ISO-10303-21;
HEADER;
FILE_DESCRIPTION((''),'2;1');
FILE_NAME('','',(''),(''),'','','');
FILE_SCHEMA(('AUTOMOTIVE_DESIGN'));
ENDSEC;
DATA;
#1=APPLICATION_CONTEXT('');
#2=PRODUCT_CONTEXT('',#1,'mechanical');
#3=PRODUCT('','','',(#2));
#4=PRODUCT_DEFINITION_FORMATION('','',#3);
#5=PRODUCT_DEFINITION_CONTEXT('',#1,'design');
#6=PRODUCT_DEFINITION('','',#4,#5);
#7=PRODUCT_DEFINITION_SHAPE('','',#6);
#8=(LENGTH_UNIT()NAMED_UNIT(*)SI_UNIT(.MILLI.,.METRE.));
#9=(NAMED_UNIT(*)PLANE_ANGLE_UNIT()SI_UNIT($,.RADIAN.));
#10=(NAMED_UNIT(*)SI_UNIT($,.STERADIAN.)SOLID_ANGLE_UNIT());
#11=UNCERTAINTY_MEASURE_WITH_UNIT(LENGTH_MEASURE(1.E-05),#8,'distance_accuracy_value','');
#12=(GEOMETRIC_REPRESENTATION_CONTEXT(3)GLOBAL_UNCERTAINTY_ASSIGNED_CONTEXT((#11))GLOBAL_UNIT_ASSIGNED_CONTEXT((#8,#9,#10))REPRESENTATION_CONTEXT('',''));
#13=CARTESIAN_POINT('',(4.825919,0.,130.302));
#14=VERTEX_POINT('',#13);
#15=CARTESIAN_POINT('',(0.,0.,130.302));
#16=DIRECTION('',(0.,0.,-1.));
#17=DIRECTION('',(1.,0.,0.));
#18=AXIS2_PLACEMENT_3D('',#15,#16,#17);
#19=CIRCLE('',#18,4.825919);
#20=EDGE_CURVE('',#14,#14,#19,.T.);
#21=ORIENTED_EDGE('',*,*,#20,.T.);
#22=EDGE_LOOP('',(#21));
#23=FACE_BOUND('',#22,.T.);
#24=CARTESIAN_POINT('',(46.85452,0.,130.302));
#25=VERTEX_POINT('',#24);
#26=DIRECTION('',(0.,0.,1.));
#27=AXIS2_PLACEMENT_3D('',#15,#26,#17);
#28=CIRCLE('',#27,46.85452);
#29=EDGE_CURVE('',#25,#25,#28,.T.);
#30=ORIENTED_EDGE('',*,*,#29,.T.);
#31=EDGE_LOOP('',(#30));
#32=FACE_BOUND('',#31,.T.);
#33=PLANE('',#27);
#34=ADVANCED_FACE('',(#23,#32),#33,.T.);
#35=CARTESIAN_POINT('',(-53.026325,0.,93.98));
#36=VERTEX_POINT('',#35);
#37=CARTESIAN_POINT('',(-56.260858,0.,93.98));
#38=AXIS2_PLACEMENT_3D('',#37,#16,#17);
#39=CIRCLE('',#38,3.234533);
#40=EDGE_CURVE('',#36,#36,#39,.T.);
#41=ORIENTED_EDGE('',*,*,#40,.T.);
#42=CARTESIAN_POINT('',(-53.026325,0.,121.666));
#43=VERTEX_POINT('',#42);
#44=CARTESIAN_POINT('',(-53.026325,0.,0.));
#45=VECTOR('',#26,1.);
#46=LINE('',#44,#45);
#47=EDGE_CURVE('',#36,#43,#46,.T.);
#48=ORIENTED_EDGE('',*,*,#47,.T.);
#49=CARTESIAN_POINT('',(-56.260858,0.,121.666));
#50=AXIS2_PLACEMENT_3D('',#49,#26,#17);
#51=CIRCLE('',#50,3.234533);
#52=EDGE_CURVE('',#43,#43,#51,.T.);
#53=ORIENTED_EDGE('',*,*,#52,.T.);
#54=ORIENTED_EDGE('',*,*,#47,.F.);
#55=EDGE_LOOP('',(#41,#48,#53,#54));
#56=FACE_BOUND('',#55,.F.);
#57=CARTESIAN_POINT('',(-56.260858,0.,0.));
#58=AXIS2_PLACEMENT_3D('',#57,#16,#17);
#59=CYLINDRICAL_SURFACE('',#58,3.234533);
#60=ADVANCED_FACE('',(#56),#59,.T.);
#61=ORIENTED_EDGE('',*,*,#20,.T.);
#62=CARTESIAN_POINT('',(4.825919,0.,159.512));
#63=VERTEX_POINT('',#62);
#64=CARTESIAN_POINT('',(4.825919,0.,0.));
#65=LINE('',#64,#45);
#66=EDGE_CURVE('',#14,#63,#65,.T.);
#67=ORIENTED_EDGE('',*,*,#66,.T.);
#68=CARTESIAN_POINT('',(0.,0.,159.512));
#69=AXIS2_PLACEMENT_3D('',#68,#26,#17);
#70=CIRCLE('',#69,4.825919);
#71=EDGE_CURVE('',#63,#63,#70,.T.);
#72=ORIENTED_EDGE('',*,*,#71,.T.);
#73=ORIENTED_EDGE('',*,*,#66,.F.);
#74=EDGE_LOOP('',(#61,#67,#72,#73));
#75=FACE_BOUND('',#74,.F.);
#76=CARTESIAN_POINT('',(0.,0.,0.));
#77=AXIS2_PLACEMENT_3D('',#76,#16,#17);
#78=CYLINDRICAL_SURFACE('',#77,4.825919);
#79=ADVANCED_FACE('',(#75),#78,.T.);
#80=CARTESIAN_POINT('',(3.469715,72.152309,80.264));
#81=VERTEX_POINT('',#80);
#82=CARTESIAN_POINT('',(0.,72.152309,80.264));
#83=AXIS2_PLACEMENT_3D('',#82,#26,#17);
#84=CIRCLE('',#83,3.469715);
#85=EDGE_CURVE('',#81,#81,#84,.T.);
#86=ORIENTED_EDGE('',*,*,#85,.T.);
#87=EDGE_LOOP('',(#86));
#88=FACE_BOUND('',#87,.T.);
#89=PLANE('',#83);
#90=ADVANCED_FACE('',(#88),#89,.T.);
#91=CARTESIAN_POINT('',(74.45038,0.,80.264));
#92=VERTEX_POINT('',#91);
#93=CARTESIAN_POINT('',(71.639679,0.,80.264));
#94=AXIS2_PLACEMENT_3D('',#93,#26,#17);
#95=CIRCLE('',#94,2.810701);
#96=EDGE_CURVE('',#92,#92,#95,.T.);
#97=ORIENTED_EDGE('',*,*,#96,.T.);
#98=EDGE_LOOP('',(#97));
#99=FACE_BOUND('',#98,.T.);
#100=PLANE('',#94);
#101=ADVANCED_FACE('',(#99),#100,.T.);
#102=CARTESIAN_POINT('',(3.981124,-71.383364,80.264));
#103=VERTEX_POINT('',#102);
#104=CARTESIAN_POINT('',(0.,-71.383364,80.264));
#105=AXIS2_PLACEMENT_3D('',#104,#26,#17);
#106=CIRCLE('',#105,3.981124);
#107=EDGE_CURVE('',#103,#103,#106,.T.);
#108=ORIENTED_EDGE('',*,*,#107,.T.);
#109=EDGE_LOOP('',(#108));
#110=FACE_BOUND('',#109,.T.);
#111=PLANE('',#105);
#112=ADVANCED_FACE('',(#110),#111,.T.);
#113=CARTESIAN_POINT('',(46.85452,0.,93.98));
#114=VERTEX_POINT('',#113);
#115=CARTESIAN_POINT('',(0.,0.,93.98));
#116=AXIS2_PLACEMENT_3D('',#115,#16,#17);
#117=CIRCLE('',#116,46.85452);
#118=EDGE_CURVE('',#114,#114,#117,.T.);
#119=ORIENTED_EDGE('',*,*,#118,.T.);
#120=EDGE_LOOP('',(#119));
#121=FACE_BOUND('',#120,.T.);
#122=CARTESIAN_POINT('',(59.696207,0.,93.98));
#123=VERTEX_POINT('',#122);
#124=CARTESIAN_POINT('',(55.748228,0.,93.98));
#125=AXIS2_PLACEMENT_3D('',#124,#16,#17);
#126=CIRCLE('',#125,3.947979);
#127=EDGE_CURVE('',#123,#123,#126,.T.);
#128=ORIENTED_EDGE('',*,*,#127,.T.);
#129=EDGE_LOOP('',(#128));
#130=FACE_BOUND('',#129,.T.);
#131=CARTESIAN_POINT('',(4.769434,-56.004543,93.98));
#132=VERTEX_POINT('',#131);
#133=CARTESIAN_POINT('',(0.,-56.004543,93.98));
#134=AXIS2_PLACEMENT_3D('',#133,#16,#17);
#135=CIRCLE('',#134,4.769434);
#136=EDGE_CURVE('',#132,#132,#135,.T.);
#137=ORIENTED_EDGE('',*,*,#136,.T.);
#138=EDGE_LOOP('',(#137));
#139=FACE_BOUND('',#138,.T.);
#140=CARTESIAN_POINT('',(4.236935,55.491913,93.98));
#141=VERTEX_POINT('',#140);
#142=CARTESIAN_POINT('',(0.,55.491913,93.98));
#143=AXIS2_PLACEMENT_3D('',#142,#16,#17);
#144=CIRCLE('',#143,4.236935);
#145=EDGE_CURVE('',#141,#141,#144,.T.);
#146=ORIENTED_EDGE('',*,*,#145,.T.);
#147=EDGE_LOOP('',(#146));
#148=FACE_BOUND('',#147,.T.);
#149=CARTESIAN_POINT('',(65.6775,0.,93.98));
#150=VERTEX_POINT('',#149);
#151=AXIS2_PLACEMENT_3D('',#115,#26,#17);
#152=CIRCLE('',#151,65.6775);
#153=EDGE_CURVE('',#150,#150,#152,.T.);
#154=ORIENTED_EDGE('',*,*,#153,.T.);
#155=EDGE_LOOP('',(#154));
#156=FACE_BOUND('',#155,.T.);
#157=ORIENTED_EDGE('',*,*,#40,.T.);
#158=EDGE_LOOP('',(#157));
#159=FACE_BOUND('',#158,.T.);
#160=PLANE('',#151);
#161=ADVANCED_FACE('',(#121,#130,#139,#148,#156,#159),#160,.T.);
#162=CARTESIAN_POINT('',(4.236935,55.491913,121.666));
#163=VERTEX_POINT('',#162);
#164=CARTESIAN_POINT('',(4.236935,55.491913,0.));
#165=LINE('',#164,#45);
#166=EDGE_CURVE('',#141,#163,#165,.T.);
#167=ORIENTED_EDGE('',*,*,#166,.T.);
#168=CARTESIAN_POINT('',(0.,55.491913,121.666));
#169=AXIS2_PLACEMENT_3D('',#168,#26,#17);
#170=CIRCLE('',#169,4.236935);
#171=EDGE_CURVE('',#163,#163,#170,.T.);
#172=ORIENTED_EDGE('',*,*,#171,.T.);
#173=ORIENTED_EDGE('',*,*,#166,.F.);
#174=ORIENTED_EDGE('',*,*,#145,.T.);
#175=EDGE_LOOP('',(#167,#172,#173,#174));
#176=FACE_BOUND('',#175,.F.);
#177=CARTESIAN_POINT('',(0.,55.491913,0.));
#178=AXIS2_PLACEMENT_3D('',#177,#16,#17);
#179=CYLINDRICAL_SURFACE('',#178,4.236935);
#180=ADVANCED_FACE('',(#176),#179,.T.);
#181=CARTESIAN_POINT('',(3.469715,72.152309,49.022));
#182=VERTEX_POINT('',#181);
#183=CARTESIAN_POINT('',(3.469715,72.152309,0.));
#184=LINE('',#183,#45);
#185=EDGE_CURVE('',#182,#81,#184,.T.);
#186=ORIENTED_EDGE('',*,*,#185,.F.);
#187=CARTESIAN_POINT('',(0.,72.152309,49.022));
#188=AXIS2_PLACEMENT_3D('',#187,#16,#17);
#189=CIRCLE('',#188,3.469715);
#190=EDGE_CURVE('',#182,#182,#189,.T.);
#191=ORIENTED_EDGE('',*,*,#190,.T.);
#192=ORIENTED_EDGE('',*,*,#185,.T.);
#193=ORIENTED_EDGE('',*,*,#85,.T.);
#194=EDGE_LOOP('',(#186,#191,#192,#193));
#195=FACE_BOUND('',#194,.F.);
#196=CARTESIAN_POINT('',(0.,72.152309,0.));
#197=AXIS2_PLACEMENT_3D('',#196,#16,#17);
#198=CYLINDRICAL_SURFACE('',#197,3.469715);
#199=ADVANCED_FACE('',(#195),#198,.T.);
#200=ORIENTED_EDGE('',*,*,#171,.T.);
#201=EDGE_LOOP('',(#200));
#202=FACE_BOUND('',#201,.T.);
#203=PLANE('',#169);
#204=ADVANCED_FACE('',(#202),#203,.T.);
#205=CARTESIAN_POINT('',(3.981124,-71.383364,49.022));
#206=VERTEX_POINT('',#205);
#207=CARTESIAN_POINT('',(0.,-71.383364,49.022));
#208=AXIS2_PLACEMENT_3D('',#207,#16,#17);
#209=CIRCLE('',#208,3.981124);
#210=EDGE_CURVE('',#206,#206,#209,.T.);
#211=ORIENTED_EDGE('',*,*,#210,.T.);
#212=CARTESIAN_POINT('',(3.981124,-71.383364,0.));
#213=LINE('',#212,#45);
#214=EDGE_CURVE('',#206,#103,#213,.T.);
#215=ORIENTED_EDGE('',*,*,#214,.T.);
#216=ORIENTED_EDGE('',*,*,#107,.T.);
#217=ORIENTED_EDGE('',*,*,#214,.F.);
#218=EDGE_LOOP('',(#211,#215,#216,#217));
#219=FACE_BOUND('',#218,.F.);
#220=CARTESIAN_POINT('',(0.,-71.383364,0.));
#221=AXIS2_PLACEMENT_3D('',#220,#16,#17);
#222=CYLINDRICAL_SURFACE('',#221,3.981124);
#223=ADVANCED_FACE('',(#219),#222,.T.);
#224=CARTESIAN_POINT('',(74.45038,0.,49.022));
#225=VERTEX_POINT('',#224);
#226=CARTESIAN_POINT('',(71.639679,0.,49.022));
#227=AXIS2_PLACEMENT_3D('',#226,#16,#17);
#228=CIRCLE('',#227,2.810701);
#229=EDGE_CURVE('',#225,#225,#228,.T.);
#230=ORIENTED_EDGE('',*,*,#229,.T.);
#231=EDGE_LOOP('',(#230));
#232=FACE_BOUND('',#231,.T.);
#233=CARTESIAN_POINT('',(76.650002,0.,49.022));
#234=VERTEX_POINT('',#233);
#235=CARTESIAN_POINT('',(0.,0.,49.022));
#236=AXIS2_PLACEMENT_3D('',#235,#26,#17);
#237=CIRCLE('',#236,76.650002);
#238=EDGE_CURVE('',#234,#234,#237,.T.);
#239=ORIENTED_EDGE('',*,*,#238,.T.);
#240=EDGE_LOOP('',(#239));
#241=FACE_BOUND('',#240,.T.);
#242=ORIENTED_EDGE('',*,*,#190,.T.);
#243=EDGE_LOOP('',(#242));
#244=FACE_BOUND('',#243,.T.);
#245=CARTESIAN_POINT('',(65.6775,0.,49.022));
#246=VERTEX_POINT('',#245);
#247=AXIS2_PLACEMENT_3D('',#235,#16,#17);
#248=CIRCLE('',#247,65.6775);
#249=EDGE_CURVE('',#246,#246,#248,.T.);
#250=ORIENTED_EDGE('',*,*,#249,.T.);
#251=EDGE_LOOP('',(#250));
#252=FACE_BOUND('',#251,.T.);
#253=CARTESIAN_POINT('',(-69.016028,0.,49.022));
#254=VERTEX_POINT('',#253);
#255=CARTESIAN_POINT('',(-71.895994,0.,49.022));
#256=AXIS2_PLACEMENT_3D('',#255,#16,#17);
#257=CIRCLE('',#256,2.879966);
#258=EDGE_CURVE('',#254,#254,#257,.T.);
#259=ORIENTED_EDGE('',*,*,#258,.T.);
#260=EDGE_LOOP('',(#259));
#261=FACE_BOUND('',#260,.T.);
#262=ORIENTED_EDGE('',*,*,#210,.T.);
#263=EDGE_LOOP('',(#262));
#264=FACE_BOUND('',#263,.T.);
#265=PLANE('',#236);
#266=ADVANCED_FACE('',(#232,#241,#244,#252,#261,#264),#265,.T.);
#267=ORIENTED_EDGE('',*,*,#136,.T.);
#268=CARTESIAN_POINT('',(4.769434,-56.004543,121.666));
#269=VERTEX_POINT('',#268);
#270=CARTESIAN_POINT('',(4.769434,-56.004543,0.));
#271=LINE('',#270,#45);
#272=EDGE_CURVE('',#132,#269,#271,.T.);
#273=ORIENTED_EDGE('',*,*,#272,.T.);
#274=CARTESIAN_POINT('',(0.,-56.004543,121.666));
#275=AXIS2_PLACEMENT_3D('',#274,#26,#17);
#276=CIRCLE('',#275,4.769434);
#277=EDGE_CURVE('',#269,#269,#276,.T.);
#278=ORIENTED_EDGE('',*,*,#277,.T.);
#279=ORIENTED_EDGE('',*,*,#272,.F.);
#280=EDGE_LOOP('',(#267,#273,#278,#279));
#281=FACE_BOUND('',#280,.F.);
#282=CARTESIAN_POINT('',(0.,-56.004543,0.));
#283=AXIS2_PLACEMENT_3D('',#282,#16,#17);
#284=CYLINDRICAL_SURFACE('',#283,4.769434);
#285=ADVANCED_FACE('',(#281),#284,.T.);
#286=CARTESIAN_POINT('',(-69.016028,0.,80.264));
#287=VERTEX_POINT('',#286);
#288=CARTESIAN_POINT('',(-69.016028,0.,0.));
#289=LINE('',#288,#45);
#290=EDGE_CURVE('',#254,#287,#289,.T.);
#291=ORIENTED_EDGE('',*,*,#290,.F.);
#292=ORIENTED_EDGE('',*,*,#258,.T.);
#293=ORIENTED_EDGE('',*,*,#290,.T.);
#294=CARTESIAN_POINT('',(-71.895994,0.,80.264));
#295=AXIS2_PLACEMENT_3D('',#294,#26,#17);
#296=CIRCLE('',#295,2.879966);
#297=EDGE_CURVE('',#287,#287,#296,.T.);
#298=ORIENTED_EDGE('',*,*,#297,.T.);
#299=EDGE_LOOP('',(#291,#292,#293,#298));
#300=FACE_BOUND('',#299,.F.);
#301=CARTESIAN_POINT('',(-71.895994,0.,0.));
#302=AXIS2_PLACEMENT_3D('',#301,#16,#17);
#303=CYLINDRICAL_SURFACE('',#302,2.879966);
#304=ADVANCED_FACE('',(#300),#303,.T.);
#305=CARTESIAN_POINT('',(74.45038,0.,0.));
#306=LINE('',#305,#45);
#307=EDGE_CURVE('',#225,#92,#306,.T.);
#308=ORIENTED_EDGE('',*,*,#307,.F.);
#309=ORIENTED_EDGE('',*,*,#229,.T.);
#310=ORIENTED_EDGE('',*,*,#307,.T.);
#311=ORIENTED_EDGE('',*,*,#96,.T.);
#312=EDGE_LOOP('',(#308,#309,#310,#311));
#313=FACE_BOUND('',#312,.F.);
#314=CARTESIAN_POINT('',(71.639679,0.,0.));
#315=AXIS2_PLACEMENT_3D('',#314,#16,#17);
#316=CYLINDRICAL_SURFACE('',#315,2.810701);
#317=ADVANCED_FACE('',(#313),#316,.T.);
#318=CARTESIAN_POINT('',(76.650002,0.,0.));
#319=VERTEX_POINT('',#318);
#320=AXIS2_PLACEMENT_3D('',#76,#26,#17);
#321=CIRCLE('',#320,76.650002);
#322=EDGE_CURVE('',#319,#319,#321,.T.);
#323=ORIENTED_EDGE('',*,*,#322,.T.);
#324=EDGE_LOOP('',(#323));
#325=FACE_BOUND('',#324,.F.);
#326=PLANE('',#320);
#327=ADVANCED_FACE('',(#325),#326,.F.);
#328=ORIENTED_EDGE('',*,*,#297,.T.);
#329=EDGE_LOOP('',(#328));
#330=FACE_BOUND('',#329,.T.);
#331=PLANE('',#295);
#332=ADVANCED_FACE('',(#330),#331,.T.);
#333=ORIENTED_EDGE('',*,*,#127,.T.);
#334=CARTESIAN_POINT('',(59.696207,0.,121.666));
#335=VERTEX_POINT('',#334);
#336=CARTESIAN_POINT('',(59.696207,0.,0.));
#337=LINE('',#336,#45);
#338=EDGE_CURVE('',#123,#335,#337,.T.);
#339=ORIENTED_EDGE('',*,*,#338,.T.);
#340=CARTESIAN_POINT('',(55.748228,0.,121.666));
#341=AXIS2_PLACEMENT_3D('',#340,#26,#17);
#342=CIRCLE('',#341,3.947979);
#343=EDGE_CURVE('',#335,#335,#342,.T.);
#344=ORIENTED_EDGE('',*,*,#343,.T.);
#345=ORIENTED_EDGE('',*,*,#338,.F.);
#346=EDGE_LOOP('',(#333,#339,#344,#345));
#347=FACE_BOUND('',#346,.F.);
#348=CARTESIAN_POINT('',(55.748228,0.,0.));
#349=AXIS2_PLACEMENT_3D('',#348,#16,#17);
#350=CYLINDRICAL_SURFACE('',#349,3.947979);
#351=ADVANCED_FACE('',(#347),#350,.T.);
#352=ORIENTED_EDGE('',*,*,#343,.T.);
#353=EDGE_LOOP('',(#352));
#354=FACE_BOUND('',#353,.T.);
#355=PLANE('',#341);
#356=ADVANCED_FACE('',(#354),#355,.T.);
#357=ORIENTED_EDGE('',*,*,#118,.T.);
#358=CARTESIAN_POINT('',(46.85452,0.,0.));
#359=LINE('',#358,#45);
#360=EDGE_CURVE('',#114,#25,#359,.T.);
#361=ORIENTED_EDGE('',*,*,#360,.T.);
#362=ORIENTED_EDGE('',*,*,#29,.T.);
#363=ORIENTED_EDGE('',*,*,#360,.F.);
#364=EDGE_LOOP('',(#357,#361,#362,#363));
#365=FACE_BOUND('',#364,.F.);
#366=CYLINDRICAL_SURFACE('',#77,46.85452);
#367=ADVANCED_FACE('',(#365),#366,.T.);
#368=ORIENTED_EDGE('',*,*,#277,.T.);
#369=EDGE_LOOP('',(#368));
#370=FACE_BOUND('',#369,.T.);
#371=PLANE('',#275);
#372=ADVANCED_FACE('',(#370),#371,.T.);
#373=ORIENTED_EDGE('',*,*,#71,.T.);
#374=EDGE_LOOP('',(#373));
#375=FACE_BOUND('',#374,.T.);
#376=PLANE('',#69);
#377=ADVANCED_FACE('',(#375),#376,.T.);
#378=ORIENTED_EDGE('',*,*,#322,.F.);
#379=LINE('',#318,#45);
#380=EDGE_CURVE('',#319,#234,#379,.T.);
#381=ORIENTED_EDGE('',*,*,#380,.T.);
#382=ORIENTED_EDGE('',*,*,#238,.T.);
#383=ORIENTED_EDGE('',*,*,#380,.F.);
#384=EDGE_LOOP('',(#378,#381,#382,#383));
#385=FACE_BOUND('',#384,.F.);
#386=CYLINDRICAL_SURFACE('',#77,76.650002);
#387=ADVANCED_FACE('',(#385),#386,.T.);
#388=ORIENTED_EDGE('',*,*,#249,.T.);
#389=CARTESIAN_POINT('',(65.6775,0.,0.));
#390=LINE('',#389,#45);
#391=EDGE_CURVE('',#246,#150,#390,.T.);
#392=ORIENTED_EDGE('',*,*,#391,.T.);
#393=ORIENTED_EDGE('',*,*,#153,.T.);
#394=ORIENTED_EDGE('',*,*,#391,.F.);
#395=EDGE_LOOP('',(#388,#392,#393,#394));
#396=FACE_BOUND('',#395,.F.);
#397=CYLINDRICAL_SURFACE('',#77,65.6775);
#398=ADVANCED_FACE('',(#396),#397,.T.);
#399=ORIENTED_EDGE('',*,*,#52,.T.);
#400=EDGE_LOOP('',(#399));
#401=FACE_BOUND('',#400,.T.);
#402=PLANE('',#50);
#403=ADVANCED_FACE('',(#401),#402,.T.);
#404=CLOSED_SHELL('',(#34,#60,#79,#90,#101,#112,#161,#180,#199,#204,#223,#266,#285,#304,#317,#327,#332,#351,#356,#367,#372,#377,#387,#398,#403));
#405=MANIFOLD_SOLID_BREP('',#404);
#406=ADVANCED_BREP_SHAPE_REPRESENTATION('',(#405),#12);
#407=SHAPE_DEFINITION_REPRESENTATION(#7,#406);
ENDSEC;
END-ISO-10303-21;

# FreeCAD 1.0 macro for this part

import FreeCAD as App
import Part
import Sketcher
from FreeCAD import Vector
Q = App.Units.Quantity

doc = App.newDocument("Part")
body = doc.addObject("PartDesign::Body", "Body")

# Sketch on XY plane
sketch1 = body.newObject("Sketcher::SketchObject", "Sketch")
sketch1.AttachmentSupport = (doc.getObject("XY_Plane"), [""])
sketch1.MapMode = "FlatFace"
sketch1.addGeometry(Part.Circle(Vector(0, 0, 0), Vector(0, 0, 1), 77), False)
sketch1.addConstraint([
    Sketcher.Constraint("Coincident", 0, 3, -1, 1),
    Sketcher.Constraint("Diameter", 0, 153.300004),
])
pad1 = body.newObject("PartDesign::Pad", "Pad")
pad1.Profile = sketch1
pad1.Length = Q("1.93 in")

# Sketch on XY plane
sketch2 = body.newObject("Sketcher::SketchObject", "Sketch001")
sketch2.AttachmentSupport = (doc.getObject("XY_Plane"), [""])
sketch2.MapMode = "FlatFace"
sketch2.addGeometry(Part.Circle(Vector(0, 0, 0), Vector(0, 0, 1), 66), False)
sketch2.addConstraint([
    Sketcher.Constraint("Coincident", 0, 3, -1, 1),
    Sketcher.Constraint("Diameter", 0, 131.355),
])
pad2 = body.newObject("PartDesign::Pad", "Pad001")
pad2.Profile = sketch2
pad2.Length = Q("3.7 in")

# Sketch on XY plane
sketch3 = body.newObject("Sketcher::SketchObject", "Sketch002")
sketch3.AttachmentSupport = (doc.getObject("XY_Plane"), [""])
sketch3.MapMode = "FlatFace"
sketch3.addGeometry(Part.Circle(Vector(0, 0, 0), Vector(0, 0, 1), 47), False)
sketch3.addConstraint([
    Sketcher.Constraint("Coincident", 0, 3, -1, 1),
    Sketcher.Constraint("Diameter", 0, 93.70904),
])
pad3 = body.newObject("PartDesign::Pad", "Pad002")
pad3.Profile = sketch3
pad3.Length = Q("5.13 in")

# Sketch on XY plane
sketch4 = body.newObject("Sketcher::SketchObject", "Sketch003")
sketch4.AttachmentSupport = (doc.getObject("XY_Plane"), [""])
sketch4.MapMode = "FlatFace"
sketch4.addGeometry([
    Part.Circle(Vector(-71.9, 0, 0), Vector(0, 0, 1), 2.9),
    Part.Circle(Vector(71.6, 0, 0), Vector(0, 0, 1), 2.8),
    Part.Circle(Vector(0, 72.2, 0), Vector(0, 0, 1), 3.5),
    Part.Circle(Vector(0, -71.4, 0), Vector(0, 0, 1), 4),
], False)
sketch4.addConstraint([
    Sketcher.Constraint("PointOnObject", 0, 3, -1),
    Sketcher.Constraint("PointOnObject", 1, 3, -1),
    Sketcher.Constraint("PointOnObject", 2, 3, -2),
    Sketcher.Constraint("PointOnObject", 3, 3, -2),
    Sketcher.Constraint("Diameter", 1, 5.621402),
    Sketcher.Constraint("Diameter", 2, 6.93943),
    Sketcher.Constraint("Diameter", 0, 5.759932),
    Sketcher.Constraint("Diameter", 3, 7.962248),
    Sketcher.Constraint("DistanceX", -1, 1, 1, 3, 71.639679),
    Sketcher.Constraint("DistanceY", -1, 1, 2, 3, 72.152309),
    Sketcher.Constraint("DistanceX", 0, 3, -1, 1, 71.895994),
    Sketcher.Constraint("DistanceY", 3, 3, -1, 1, 71.383364),
])
pad4 = body.newObject("PartDesign::Pad", "Pad003")
pad4.Profile = sketch4
pad4.Length = Q("3.16 in")

# Sketch on XY plane
sketch5 = body.newObject("Sketcher::SketchObject", "Sketch004")
sketch5.AttachmentSupport = (doc.getObject("XY_Plane"), [""])
sketch5.MapMode = "FlatFace"
sketch5.addGeometry([
    Part.Circle(Vector(-56.3, 0, 0), Vector(0, 0, 1), 3.2),  # 0
    Part.Circle(Vector(55.7, 0, 0), Vector(0, 0, 1), 3.9),  # 1
    Part.Circle(Vector(0, -56, 0), Vector(0, 0, 1), 4.8),  # 2
    Part.Circle(Vector(0, 55.5, 0), Vector(0, 0, 1), 4.2),  # 3
    Part.Circle(Vector(0, 0, 0), Vector(0, 0, 1), 3.4),  # 4
], False)
sketch5.addConstraint([
    Sketcher.Constraint("Coincident", 4, 3, -1, 1),
    Sketcher.Constraint("PointOnObject", 0, 3, -1),
    Sketcher.Constraint("PointOnObject", 1, 3, -1),
    Sketcher.Constraint("PointOnObject", 2, 3, -2),
    Sketcher.Constraint("PointOnObject", 3, 3, -2),
    Sketcher.Constraint("Diameter", 1, 7.895958),
    Sketcher.Constraint("Diameter", 2, 9.538868),
    Sketcher.Constraint("Diameter", 3, 8.47387),
    Sketcher.Constraint("Diameter", 0, 6.469066),
    Sketcher.Constraint("Diameter", 4, 6.810428),
    Sketcher.Constraint("DistanceX", 0, 3, -1, 1, 56.260858),
    Sketcher.Constraint("DistanceX", -1, 1, 1, 3, 55.748228),
    Sketcher.Constraint("DistanceY", 2, 3, -1, 1, 56.004543),
    Sketcher.Constraint("DistanceY", -1, 1, 3, 3, 55.491913),
])
pad5 = body.newObject("PartDesign::Pad", "Pad004")
pad5.Profile = sketch5
pad5.Length = Q("4.79 in")

# Sketch on XY plane
sketch6 = body.newObject("Sketcher::SketchObject", "Sketch005")
sketch6.AttachmentSupport = (doc.getObject("XY_Plane"), [""])
sketch6.MapMode = "FlatFace"
sketch6.addGeometry(Part.Circle(Vector(0, 0, 0), Vector(0, 0, 1), 4.8), False)
sketch6.addConstraint([
    Sketcher.Constraint("Coincident", 0, 3, -1, 1),
    Sketcher.Constraint("Diameter", 0, 9.651838),
])
pad6 = body.newObject("PartDesign::Pad", "Pad005")
pad6.Profile = sketch6
pad6.Length = Q("6.28 in")

doc.recompute()
